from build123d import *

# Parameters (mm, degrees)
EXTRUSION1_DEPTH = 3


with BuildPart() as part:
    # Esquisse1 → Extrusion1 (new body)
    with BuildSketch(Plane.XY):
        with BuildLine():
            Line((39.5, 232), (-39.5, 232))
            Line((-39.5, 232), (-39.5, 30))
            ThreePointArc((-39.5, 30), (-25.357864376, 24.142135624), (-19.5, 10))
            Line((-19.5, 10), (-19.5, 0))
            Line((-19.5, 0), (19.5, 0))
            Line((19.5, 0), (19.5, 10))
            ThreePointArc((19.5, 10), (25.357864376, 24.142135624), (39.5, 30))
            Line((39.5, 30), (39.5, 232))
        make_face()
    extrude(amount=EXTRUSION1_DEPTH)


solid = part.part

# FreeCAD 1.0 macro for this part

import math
import FreeCAD as App
import Part
import Sketcher

doc = App.newDocument("Part")
body = doc.addObject("PartDesign::Body", "Body")

# Sketch on XY plane
sketch1 = doc.addObject("Sketcher::SketchObject", "Sketch")
body.addObject(sketch1)
sketch1.AttachmentSupport = (doc.XY_Plane, [""])
sketch1.MapMode = "FlatFace"
sketch1.addGeometry([
    Part.LineSegment(App.Vector(39.5, 232, 0), App.Vector(-39.5, 232, 0)),  # 0
    Part.LineSegment(App.Vector(-39.5, 232, 0), App.Vector(-39.5, 30, 0)),  # 1
    Part.ArcOfCircle(Part.Circle(App.Vector(-39.5, 10, 0), App.Vector(0, 0, 1), 20), math.radians(0), math.radians(90)),  # 2
    Part.LineSegment(App.Vector(-19.5, 10, 0), App.Vector(-19.5, 0, 0)),  # 3
    Part.LineSegment(App.Vector(-19.5, 0, 0), App.Vector(19.5, 0, 0)),  # 4
    Part.LineSegment(App.Vector(19.5, 0, 0), App.Vector(19.5, 10, 0)),  # 5
    Part.ArcOfCircle(Part.Circle(App.Vector(39.5, 10, 0), App.Vector(0, 0, 1), 20), math.radians(90), math.radians(180)),  # 6
    Part.LineSegment(App.Vector(39.5, 30, 0), App.Vector(39.5, 232, 0)),  # 7
], False)
sketch1.addConstraint([
    Sketcher.Constraint("Coincident", 0, 2, 1, 1),
    Sketcher.Constraint("Coincident", 1, 2, 2, 2),
    Sketcher.Constraint("Tangent", 2, 1, 3, 1),
    Sketcher.Constraint("Coincident", 3, 2, 4, 1),
    Sketcher.Constraint("Coincident", 4, 2, 5, 1),
    Sketcher.Constraint("Tangent", 5, 2, 6, 2),
    Sketcher.Constraint("Coincident", 6, 1, 7, 1),
    Sketcher.Constraint("Coincident", 7, 2, 0, 1),
    Sketcher.Constraint("Horizontal", 0),
    Sketcher.Constraint("Vertical", 1),
    Sketcher.Constraint("Vertical", 3),
    Sketcher.Constraint("Horizontal", 4),
    Sketcher.Constraint("Vertical", 5),
    Sketcher.Constraint("Vertical", 7),
    Sketcher.Constraint("Equal", 2, 6),
    Sketcher.Constraint("Symmetric", 3, 2, 4, 2, -1, 1),
    Sketcher.Constraint("Symmetric", 1, 2, 6, 1, -2),
    Sketcher.Constraint("Vertical", 2, 3, 0, 2),
    Sketcher.Constraint("Radius", 2, 20.0),
    Sketcher.Constraint("DistanceX", 0, 2, 0, 1, 79.0),
    Sketcher.Constraint("DistanceY", 1, 2, 1, 1, 202.0),
    Sketcher.Constraint("DistanceY", 3, 2, 3, 1, 10.0),
])
pad1 = doc.addObject("PartDesign::Pad", "Pad")
body.addObject(pad1)
pad1.Profile = sketch1
pad1.Length = 3

doc.recompute()
